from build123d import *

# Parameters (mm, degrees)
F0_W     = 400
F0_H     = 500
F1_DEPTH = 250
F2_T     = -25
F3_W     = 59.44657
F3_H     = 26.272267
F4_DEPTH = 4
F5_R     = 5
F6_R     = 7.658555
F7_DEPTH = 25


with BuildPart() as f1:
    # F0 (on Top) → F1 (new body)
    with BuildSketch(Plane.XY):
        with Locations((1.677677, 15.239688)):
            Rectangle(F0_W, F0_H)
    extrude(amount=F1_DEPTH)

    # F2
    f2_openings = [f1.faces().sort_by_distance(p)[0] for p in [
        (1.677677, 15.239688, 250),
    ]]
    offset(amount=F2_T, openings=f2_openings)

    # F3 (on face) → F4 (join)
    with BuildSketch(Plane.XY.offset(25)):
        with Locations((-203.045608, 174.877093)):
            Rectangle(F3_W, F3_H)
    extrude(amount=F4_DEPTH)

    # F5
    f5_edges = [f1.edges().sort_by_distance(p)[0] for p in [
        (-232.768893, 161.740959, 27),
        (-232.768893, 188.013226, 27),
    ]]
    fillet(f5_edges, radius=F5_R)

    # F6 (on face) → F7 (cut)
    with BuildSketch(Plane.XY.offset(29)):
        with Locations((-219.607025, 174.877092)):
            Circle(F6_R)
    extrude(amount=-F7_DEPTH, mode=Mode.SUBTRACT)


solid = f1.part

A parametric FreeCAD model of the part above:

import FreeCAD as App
import Part
import Sketcher

V = App.Vector


def edges_at(feature, points):
    """Names of the edges that pass closest to the given points."""
    edges = feature.Shape.Edges
    near = lambda p: min(range(len(edges)), key=lambda i: edges[i].distToShape(Part.Vertex(*p))[0])
    return sorted({f"Edge{near(p) + 1}" for p in points})


def faces_at(feature, points):
    """Names of the faces that lie closest to the given points."""
    faces = feature.Shape.Faces
    near = lambda p: min(range(len(faces)), key=lambda i: faces[i].distToShape(Part.Vertex(*p))[0])
    return sorted({f"Face{near(p) + 1}" for p in points})

doc = App.newDocument("Part")
params = doc.addObject("Spreadsheet::Sheet", "Params")
for row, (alias, value) in enumerate([
    ("sketch1_width", "400 mm"),
    ("sketch1_height", "500 mm"),
    ("pad1_length", "250 mm"),
    ("thickness_wall", "25 mm"),
    ("pad2_length", "4 mm"),
    ("fillet_radius", "5 mm"),
    ("pocket1_length", "25 mm"),
], start=1):
    params.set(f"A{row}", alias)
    params.set(f"B{row}", "=" + value)
    params.setAlias(f"B{row}", alias)

body = doc.addObject("PartDesign::Body", "Body")

# Sketch on XY plane
sketch1 = body.newObject("Sketcher::SketchObject", "Sketch")
sketch1.AttachmentSupport = (doc.getObject("XY_Plane"), [""])
sketch1.MapMode = "FlatFace"
sketch1.addGeometry(Part.LineSegment(V(-198, 265, 0), V(-198, -235, 0)), False)
sketch1.addGeometry(Part.LineSegment(V(-198, -235, 0), V(202, -235, 0)), False)
sketch1.addGeometry(Part.LineSegment(V(202, -235, 0), V(202, 265, 0)), False)
sketch1.addGeometry(Part.LineSegment(V(202, 265, 0), V(-198, 265, 0)), False)
sketch1.addConstraint(Sketcher.Constraint("Coincident", 0, 2, 1, 1))
sketch1.addConstraint(Sketcher.Constraint("Coincident", 1, 2, 2, 1))
sketch1.addConstraint(Sketcher.Constraint("Coincident", 2, 2, 3, 1))
sketch1.addConstraint(Sketcher.Constraint("Coincident", 3, 2, 0, 1))
sketch1.addConstraint(Sketcher.Constraint("Vertical", 0))
sketch1.addConstraint(Sketcher.Constraint("Horizontal", 1))
sketch1.addConstraint(Sketcher.Constraint("Vertical", 2))
sketch1.addConstraint(Sketcher.Constraint("Horizontal", 3))
sketch1.addConstraint(Sketcher.Constraint("DistanceX", 1, 1, 1, 2, 400.0))
sketch1.addConstraint(Sketcher.Constraint("DistanceY", 0, 2, 0, 1, 500.0))
sketch1.addConstraint(Sketcher.Constraint("DistanceY", 0, 2, -1, 1, 234.760312))
sketch1.addConstraint(Sketcher.Constraint("DistanceX", 0, 2, -1, 1, 198.322323))
sketch1.setExpression("Constraints[8]", "Params.sketch1_width")
sketch1.setExpression("Constraints[9]", "Params.sketch1_height")
pad1 = body.newObject("PartDesign::Pad", "Pad")
pad1.Profile = sketch1
pad1.setExpression("Length", "Params.pad1_length")
doc.recompute()

thickness = body.newObject("PartDesign::Thickness", "Thickness")
thickness.Base = (pad1, faces_at(pad1, [(1.678, 15.24, 250)]))
thickness.setExpression("Value", "Params.thickness_wall")
thickness.Reversed = True
thickness.Join = "Arc"

# Sketch on XY plane
sketch2 = body.newObject("Sketcher::SketchObject", "Sketch001")
sketch2.AttachmentSupport = (doc.getObject("XY_Plane"), [""])
sketch2.MapMode = "FlatFace"
sketch2.AttachmentOffset = App.Placement(V(0, 0, 25), App.Rotation())
sketch2.addGeometry(Part.LineSegment(V(-233, 188, 0), V(-233, 162, 0)), False)
sketch2.addGeometry(Part.LineSegment(V(-233, 162, 0), V(-173, 162, 0)), False)
sketch2.addGeometry(Part.LineSegment(V(-173, 162, 0), V(-173, 188, 0)), False)
sketch2.addGeometry(Part.LineSegment(V(-173, 188, 0), V(-233, 188, 0)), False)
sketch2.addConstraint(Sketcher.Constraint("Coincident", 0, 2, 1, 1))
sketch2.addConstraint(Sketcher.Constraint("Coincident", 1, 2, 2, 1))
sketch2.addConstraint(Sketcher.Constraint("Coincident", 2, 2, 3, 1))
sketch2.addConstraint(Sketcher.Constraint("Coincident", 3, 2, 0, 1))
sketch2.addConstraint(Sketcher.Constraint("Vertical", 0))
sketch2.addConstraint(Sketcher.Constraint("Horizontal", 1))
sketch2.addConstraint(Sketcher.Constraint("Vertical", 2))
sketch2.addConstraint(Sketcher.Constraint("Horizontal", 3))
sketch2.addConstraint(Sketcher.Constraint("DistanceX", 1, 1, 1, 2, 59.44657))
sketch2.addConstraint(Sketcher.Constraint("DistanceY", 0, 2, 0, 1, 26.272267))
sketch2.addConstraint(Sketcher.Constraint("DistanceY", -1, 1, 0, 2, 161.74096))
sketch2.addConstraint(Sketcher.Constraint("DistanceX", 0, 2, -1, 1, 232.768893))
pad2 = body.newObject("PartDesign::Pad", "Pad001")
pad2.Profile = sketch2
pad2.setExpression("Length", "Params.pad2_length")
doc.recompute()

fillet = body.newObject("PartDesign::Fillet", "Fillet")
fillet.Base = (pad2, edges_at(pad2, [(-232.769, 161.741, 27), (-232.769, 188.013, 27)]))
fillet.setExpression("Radius", "Params.fillet_radius")

# Sketch on XY plane
sketch3 = body.newObject("Sketcher::SketchObject", "Sketch002")
sketch3.AttachmentSupport = (doc.getObject("XY_Plane"), [""])
sketch3.MapMode = "FlatFace"
sketch3.AttachmentOffset = App.Placement(V(0, 0, 29), App.Rotation())
sketch3.addGeometry(Part.Circle(V(-220, 175, 0), V(0, 0, 1), 8), False)
sketch3.addConstraint(Sketcher.Constraint("Diameter", 0, 15.31711))
sketch3.addConstraint(Sketcher.Constraint("DistanceY", -1, 1, 0, 3, 174.877092))
sketch3.addConstraint(Sketcher.Constraint("DistanceX", 0, 3, -1, 1, 219.607025))
pocket1 = body.newObject("PartDesign::Pocket", "Pocket")
pocket1.Profile = sketch3
pocket1.setExpression("Length", "Params.pocket1_length")

doc.recompute()
